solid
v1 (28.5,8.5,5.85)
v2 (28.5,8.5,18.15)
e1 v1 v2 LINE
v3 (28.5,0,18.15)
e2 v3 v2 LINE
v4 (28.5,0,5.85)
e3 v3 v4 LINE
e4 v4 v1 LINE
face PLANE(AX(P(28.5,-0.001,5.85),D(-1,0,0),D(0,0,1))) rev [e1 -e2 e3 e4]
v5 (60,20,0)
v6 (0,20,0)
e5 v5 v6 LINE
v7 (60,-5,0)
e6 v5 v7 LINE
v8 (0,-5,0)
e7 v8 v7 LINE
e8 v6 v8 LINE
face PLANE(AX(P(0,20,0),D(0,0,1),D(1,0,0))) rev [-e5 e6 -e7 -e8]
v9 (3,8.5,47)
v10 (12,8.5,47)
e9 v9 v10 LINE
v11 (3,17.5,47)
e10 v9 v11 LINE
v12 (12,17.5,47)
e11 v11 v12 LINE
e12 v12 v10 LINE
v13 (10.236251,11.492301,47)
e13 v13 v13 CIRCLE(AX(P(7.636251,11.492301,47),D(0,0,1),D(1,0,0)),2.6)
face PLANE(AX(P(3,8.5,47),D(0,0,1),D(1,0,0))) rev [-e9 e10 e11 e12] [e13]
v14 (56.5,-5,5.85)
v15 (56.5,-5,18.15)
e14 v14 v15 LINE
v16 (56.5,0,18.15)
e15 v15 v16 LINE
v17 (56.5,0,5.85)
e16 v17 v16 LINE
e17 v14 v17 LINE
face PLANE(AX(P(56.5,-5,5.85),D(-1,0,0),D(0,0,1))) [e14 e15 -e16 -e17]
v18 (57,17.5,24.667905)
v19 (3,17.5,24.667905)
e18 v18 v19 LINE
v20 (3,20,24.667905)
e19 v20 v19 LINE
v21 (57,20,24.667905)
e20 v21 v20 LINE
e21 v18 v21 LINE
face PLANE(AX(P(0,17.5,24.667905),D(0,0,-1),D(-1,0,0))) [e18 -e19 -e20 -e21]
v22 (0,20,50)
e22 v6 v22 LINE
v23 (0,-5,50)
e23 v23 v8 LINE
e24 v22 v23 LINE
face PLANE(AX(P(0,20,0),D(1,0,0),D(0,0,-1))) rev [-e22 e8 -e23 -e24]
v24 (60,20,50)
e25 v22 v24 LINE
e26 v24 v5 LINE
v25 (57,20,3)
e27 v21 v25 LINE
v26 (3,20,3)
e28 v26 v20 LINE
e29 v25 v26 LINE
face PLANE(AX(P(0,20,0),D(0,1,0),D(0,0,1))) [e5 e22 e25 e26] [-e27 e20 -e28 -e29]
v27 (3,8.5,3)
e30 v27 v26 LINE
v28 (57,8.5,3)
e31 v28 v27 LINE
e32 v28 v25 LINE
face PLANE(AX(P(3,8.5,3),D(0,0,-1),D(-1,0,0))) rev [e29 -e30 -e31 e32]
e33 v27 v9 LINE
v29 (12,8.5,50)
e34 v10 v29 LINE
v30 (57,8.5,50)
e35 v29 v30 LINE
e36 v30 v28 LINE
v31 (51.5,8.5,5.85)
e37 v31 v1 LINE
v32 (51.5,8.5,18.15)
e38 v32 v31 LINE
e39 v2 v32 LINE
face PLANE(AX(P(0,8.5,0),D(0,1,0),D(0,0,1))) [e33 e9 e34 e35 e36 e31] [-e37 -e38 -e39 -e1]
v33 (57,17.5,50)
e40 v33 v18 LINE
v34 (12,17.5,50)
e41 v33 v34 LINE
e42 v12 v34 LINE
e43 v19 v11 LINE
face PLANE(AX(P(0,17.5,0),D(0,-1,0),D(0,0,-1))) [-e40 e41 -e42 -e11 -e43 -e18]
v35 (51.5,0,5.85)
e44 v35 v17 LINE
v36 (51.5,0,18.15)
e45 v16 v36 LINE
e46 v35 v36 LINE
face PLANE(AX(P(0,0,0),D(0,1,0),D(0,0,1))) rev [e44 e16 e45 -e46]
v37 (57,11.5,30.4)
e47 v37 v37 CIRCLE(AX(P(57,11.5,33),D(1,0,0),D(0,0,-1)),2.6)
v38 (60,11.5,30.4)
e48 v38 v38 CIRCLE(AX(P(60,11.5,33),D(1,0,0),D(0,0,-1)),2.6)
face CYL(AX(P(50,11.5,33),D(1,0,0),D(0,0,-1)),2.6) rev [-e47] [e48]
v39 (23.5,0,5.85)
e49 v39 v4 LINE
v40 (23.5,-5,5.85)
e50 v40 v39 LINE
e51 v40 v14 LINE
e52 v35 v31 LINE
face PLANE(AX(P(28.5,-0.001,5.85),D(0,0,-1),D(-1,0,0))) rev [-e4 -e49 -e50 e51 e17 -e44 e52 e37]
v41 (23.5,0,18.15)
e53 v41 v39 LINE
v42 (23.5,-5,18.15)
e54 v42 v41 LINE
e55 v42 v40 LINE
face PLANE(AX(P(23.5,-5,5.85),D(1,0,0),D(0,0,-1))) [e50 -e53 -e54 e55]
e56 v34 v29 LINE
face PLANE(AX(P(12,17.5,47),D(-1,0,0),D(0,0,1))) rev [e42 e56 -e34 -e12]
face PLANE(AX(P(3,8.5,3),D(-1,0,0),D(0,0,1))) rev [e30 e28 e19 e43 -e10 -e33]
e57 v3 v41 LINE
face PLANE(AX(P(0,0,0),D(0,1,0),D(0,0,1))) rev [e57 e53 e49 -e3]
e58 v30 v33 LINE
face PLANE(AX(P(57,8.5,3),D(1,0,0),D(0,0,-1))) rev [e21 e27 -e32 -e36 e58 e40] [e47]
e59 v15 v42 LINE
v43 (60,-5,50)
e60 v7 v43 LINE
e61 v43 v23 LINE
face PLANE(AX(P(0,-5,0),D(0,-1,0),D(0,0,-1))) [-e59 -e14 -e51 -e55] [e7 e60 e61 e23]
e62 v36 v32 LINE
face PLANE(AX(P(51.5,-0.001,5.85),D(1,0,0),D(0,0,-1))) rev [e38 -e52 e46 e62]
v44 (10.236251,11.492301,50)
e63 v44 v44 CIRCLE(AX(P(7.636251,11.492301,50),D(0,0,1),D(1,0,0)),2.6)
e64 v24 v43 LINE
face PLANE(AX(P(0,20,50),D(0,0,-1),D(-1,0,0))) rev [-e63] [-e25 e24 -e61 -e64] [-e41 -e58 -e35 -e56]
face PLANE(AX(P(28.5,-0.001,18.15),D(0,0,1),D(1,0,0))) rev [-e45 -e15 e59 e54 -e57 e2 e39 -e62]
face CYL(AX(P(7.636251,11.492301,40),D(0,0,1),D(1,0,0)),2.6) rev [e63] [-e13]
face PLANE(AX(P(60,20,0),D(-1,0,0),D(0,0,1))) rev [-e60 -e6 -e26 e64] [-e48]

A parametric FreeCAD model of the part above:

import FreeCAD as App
import Part
import Sketcher

doc = App.newDocument("Part")
params = doc.addObject("Spreadsheet::Sheet", "Params")
for row, (alias, value) in enumerate([
    ("sketch1_width", "60 mm"),
    ("sketch1_height", "50 mm"),
    ("pad1_length", "20 mm"),
    ("sketch2_width", "54 mm"),
    ("sketch2_height", "44 mm"),
    ("pocket1_length", "11.5 mm"),
    ("sketch3_width", "23 mm"),
    ("sketch3_height", "12.3 mm"),
    ("sketch4_diameter", "5.2 mm"),
    ("pocket3_length", "10 mm"),
    ("sketch5_width", "60 mm"),
    ("sketch5_width2", "33 mm"),
    ("sketch5_height", "50 mm"),
    ("sketch5_height2", "12.3 mm"),
    ("pad2_length", "5 mm"),
    ("sketch6_diameter", "5.2 mm"),
    ("pocket4_length", "10 mm"),
    ("sketch7_width", "60 mm"),
    ("pad3_length", "2.5 mm"),
    ("sketch8_width", "45 mm"),
    ("sketch8_height", "9 mm"),
    ("pocket5_length", "3 mm"),
], start=1):
    params.set(f"A{row}", alias)
    params.set(f"B{row}", "=" + value)
    params.setAlias(f"B{row}", alias)

body = doc.addObject("PartDesign::Body", "Body")

# Sketch on XZ plane
sketch1 = body.newObject("Sketcher::SketchObject", "Sketch")
sketch1.AttachmentSupport = (doc.getObject("XZ_Plane"), [""])
sketch1.MapMode = "FlatFace"
sketch1.addGeometry(Part.LineSegment(App.Vector(0, 0, 0), App.Vector(0, 50, 0)), False)
sketch1.addGeometry(Part.LineSegment(App.Vector(0, 50, 0), App.Vector(60, 50, 0)), False)
sketch1.addGeometry(Part.LineSegment(App.Vector(60, 50, 0), App.Vector(60, 0, 0)), False)
sketch1.addGeometry(Part.LineSegment(App.Vector(60, 0, 0), App.Vector(0, 0, 0)), False)
sketch1.addConstraint(Sketcher.Constraint("Coincident", 0, 2, 1, 1))
sketch1.addConstraint(Sketcher.Constraint("Coincident", 1, 2, 2, 1))
sketch1.addConstraint(Sketcher.Constraint("Coincident", 2, 2, 3, 1))
sketch1.addConstraint(Sketcher.Constraint("Coincident", 3, 2, 0, 1))
sketch1.addConstraint(Sketcher.Constraint("Vertical", 0))
sketch1.addConstraint(Sketcher.Constraint("Horizontal", 1))
sketch1.addConstraint(Sketcher.Constraint("Vertical", 2))
sketch1.addConstraint(Sketcher.Constraint("Horizontal", 3))
sketch1.addConstraint(Sketcher.Constraint("Coincident", 3, 2, -1, 1))
sketch1.addConstraint(Sketcher.Constraint("DistanceX", 1, 1, 1, 2, 60.0))
sketch1.addConstraint(Sketcher.Constraint("DistanceY", 0, 1, 0, 2, 50.0))
sketch1.setExpression("Constraints[9]", "Params.sketch1_width")
sketch1.setExpression("Constraints[10]", "Params.sketch1_height")
pad1 = body.newObject("PartDesign::Pad", "Pad")
pad1.Profile = sketch1
pad1.setExpression("Length", "Params.pad1_length")
pad1.Reversed = True

# Sketch on XZ plane
sketch2 = body.newObject("Sketcher::SketchObject", "Sketch001")
sketch2.AttachmentSupport = (doc.getObject("XZ_Plane"), [""])
sketch2.MapMode = "FlatFace"
sketch2.AttachmentOffset = App.Placement(App.Vector(0, 0, -20), App.Rotation())
sketch2.addGeometry(Part.LineSegment(App.Vector(3, 3, 0), App.Vector(3, 47, 0)), False)
sketch2.addGeometry(Part.LineSegment(App.Vector(3, 47, 0), App.Vector(57, 47, 0)), False)
sketch2.addGeometry(Part.LineSegment(App.Vector(57, 47, 0), App.Vector(57, 3, 0)), False)
sketch2.addGeometry(Part.LineSegment(App.Vector(57, 3, 0), App.Vector(3, 3, 0)), False)
sketch2.addConstraint(Sketcher.Constraint("Coincident", 0, 2, 1, 1))
sketch2.addConstraint(Sketcher.Constraint("Coincident", 1, 2, 2, 1))
sketch2.addConstraint(Sketcher.Constraint("Coincident", 2, 2, 3, 1))
sketch2.addConstraint(Sketcher.Constraint("Coincident", 3, 2, 0, 1))
sketch2.addConstraint(Sketcher.Constraint("Vertical", 0))
sketch2.addConstraint(Sketcher.Constraint("Horizontal", 1))
sketch2.addConstraint(Sketcher.Constraint("Vertical", 2))
sketch2.addConstraint(Sketcher.Constraint("Horizontal", 3))
sketch2.addConstraint(Sketcher.Constraint("DistanceX", 1, 1, 1, 2, 54.0))
sketch2.addConstraint(Sketcher.Constraint("DistanceY", 0, 1, 0, 2, 44.0))
sketch2.addConstraint(Sketcher.Constraint("DistanceX", -1, 1, 0, 2, 3.0))
sketch2.addConstraint(Sketcher.Constraint("DistanceY", -1, 1, 0, 2, 47.0))
sketch2.setExpression("Constraints[8]", "Params.sketch2_width")
sketch2.setExpression("Constraints[9]", "Params.sketch2_height")
pocket1 = body.newObject("PartDesign::Pocket", "Pocket")
pocket1.Profile = sketch2
pocket1.setExpression("Length", "Params.pocket1_length")
pocket1.Reversed = True

# Sketch on XZ plane
sketch3 = body.newObject("Sketcher::SketchObject", "Sketch002")
sketch3.AttachmentSupport = (doc.getObject("XZ_Plane"), [""])
sketch3.MapMode = "FlatFace"
sketch3.AttachmentOffset = App.Placement(App.Vector(0, 0, -8.5), App.Rotation())
sketch3.addGeometry(Part.LineSegment(App.Vector(28, 6, 0), App.Vector(28, 18, 0)), False)
sketch3.addGeometry(Part.LineSegment(App.Vector(28, 18, 0), App.Vector(52, 18, 0)), False)
sketch3.addGeometry(Part.LineSegment(App.Vector(52, 18, 0), App.Vector(52, 6, 0)), False)
sketch3.addGeometry(Part.LineSegment(App.Vector(52, 6, 0), App.Vector(28, 6, 0)), False)
sketch3.addConstraint(Sketcher.Constraint("Coincident", 0, 2, 1, 1))
sketch3.addConstraint(Sketcher.Constraint("Coincident", 1, 2, 2, 1))
sketch3.addConstraint(Sketcher.Constraint("Coincident", 2, 2, 3, 1))
sketch3.addConstraint(Sketcher.Constraint("Coincident", 3, 2, 0, 1))
sketch3.addConstraint(Sketcher.Constraint("Vertical", 0))
sketch3.addConstraint(Sketcher.Constraint("Horizontal", 1))
sketch3.addConstraint(Sketcher.Constraint("Vertical", 2))
sketch3.addConstraint(Sketcher.Constraint("Horizontal", 3))
sketch3.addConstraint(Sketcher.Constraint("DistanceX", 1, 1, 1, 2, 23.0))
sketch3.addConstraint(Sketcher.Constraint("DistanceY", 0, 1, 0, 2, 12.3))
sketch3.addConstraint(Sketcher.Constraint("DistanceX", -1, 1, 0, 2, 28.5))
sketch3.addConstraint(Sketcher.Constraint("DistanceY", -1, 1, 0, 2, 18.15))
sketch3.setExpression("Constraints[8]", "Params.sketch3_width")
sketch3.setExpression("Constraints[9]", "Params.sketch3_height")
pocket2 = body.newObject("PartDesign::Pocket", "Pocket001")
pocket2.Profile = sketch3
pocket2.Type = "UpToFirst"
pocket2.Reversed = True

# Sketch on YZ plane
sketch4 = body.newObject("Sketcher::SketchObject", "Sketch003")
sketch4.AttachmentSupport = (doc.getObject("YZ_Plane"), [""])
sketch4.MapMode = "FlatFace"
sketch4.AttachmentOffset = App.Placement(App.Vector(0, 0, 60), App.Rotation())
sketch4.addGeometry(Part.Circle(App.Vector(11.5, 33, 0), App.Vector(0, 0, 1), 2.6), False)
sketch4.addConstraint(Sketcher.Constraint("Diameter", 0, 5.2))
sketch4.addConstraint(Sketcher.Constraint("DistanceY", -1, 1, 0, 3, 33.0))
sketch4.addConstraint(Sketcher.Constraint("DistanceX", -1, 1, 0, 3, 11.5))
sketch4.setExpression("Constraints[0]", "Params.sketch4_diameter")
pocket3 = body.newObject("PartDesign::Pocket", "Pocket002")
pocket3.Profile = sketch4
pocket3.setExpression("Length", "Params.pocket3_length")

# Sketch on XZ plane
sketch5 = body.newObject("Sketcher::SketchObject", "Sketch004")
sketch5.AttachmentSupport = (doc.getObject("XZ_Plane"), [""])
sketch5.MapMode = "FlatFace"
sketch5.addGeometry(Part.LineSegment(App.Vector(0, 50, 0), App.Vector(0, 0, 0)), False)
sketch5.addGeometry(Part.LineSegment(App.Vector(0, 0, 0), App.Vector(60, 0, 0)), False)
sketch5.addGeometry(Part.LineSegment(App.Vector(60, 0, 0), App.Vector(60, 50, 0)), False)
sketch5.addGeometry(Part.LineSegment(App.Vector(60, 50, 0), App.Vector(0, 50, 0)), False)
sketch5.addGeometry(Part.LineSegment(App.Vector(56, 6, 0), App.Vector(24, 6, 0)), False)
sketch5.addGeometry(Part.LineSegment(App.Vector(24, 6, 0), App.Vector(24, 18, 0)), False)
sketch5.addGeometry(Part.LineSegment(App.Vector(24, 18, 0), App.Vector(56, 18, 0)), False)
sketch5.addGeometry(Part.LineSegment(App.Vector(56, 18, 0), App.Vector(56, 6, 0)), False)
sketch5.addConstraint(Sketcher.Constraint("Coincident", 0, 2, 1, 1))
sketch5.addConstraint(Sketcher.Constraint("Coincident", 1, 2, 2, 1))
sketch5.addConstraint(Sketcher.Constraint("Coincident", 2, 2, 3, 1))
sketch5.addConstraint(Sketcher.Constraint("Coincident", 3, 2, 0, 1))
sketch5.addConstraint(Sketcher.Constraint("Coincident", 4, 2, 5, 1))
sketch5.addConstraint(Sketcher.Constraint("Coincident", 5, 2, 6, 1))
sketch5.addConstraint(Sketcher.Constraint("Coincident", 6, 2, 7, 1))
sketch5.addConstraint(Sketcher.Constraint("Coincident", 7, 2, 4, 1))
sketch5.addConstraint(Sketcher.Constraint("Vertical", 0))
sketch5.addConstraint(Sketcher.Constraint("Horizontal", 1))
sketch5.addConstraint(Sketcher.Constraint("Vertical", 2))
sketch5.addConstraint(Sketcher.Constraint("Horizontal", 3))
sketch5.addConstraint(Sketcher.Constraint("Horizontal", 4))
sketch5.addConstraint(Sketcher.Constraint("Vertical", 5))
sketch5.addConstraint(Sketcher.Constraint("Horizontal", 6))
sketch5.addConstraint(Sketcher.Constraint("Vertical", 7))
sketch5.addConstraint(Sketcher.Constraint("Coincident", 0, 2, -1, 1))
sketch5.addConstraint(Sketcher.Constraint("DistanceX", 1, 1, 1, 2, 60.0))
sketch5.addConstraint(Sketcher.Constraint("DistanceX", 4, 2, 4, 1, 33.0))
sketch5.addConstraint(Sketcher.Constraint("DistanceY", 0, 2, 0, 1, 50.0))
sketch5.addConstraint(Sketcher.Constraint("DistanceY", 5, 1, 5, 2, 12.3))
sketch5.addConstraint(Sketcher.Constraint("DistanceX", -1, 1, 4, 2, 23.5))
sketch5.addConstraint(Sketcher.Constraint("DistanceY", -1, 1, 4, 2, 5.85))
sketch5.setExpression("Constraints[17]", "Params.sketch5_width")
sketch5.setExpression("Constraints[18]", "Params.sketch5_width2")
sketch5.setExpression("Constraints[19]", "Params.sketch5_height")
sketch5.setExpression("Constraints[20]", "Params.sketch5_height2")
pad2 = body.newObject("PartDesign::Pad", "Pad001")
pad2.Profile = sketch5
pad2.setExpression("Length", "Params.pad2_length")

# Sketch on XY plane
sketch6 = body.newObject("Sketcher::SketchObject", "Sketch005")
sketch6.AttachmentSupport = (doc.getObject("XY_Plane"), [""])
sketch6.MapMode = "FlatFace"
sketch6.AttachmentOffset = App.Placement(App.Vector(0, 0, 50), App.Rotation())
sketch6.addGeometry(Part.Circle(App.Vector(7.6, 11.5, 0), App.Vector(0, 0, 1), 2.6), False)
sketch6.addConstraint(Sketcher.Constraint("Diameter", 0, 5.2))
sketch6.addConstraint(Sketcher.Constraint("DistanceY", -1, 1, 0, 3, 11.492301))
sketch6.addConstraint(Sketcher.Constraint("DistanceX", -1, 1, 0, 3, 7.636251))
sketch6.setExpression("Constraints[0]", "Params.sketch6_diameter")
pocket4 = body.newObject("PartDesign::Pocket", "Pocket003")
pocket4.Profile = sketch6
pocket4.setExpression("Length", "Params.pocket4_length")

# Sketch on XZ plane
sketch7 = body.newObject("Sketcher::SketchObject", "Sketch006")
sketch7.AttachmentSupport = (doc.getObject("XZ_Plane"), [""])
sketch7.MapMode = "FlatFace"
sketch7.AttachmentOffset = App.Placement(App.Vector(0, 0, -20), App.Rotation())
sketch7.addGeometry(Part.LineSegment(App.Vector(0, 25, 0), App.Vector(0, 50, 0)), False)
sketch7.addGeometry(Part.LineSegment(App.Vector(0, 50, 0), App.Vector(60, 50, 0)), False)
sketch7.addGeometry(Part.LineSegment(App.Vector(60, 50, 0), App.Vector(60, 25, 0)), False)
sketch7.addGeometry(Part.LineSegment(App.Vector(60, 25, 0), App.Vector(0, 25, 0)), False)
sketch7.addConstraint(Sketcher.Constraint("Coincident", 0, 2, 1, 1))
sketch7.addConstraint(Sketcher.Constraint("Coincident", 1, 2, 2, 1))
sketch7.addConstraint(Sketcher.Constraint("Coincident", 2, 2, 3, 1))
sketch7.addConstraint(Sketcher.Constraint("Coincident", 3, 2, 0, 1))
sketch7.addConstraint(Sketcher.Constraint("Vertical", 0))
sketch7.addConstraint(Sketcher.Constraint("Horizontal", 1))
sketch7.addConstraint(Sketcher.Constraint("Vertical", 2))
sketch7.addConstraint(Sketcher.Constraint("Horizontal", 3))
sketch7.addConstraint(Sketcher.Constraint("PointOnObject", 0, 2, -2))
sketch7.addConstraint(Sketcher.Constraint("DistanceX", 1, 1, 1, 2, 60.0))
sketch7.addConstraint(Sketcher.Constraint("DistanceY", -1, 1, 0, 2, 50.0))
sketch7.addConstraint(Sketcher.Constraint("DistanceY", 0, 1, 0, 2, 25.332095))
sketch7.setExpression("Constraints[9]", "Params.sketch7_width")
pad3 = body.newObject("PartDesign::Pad", "Pad002")
pad3.Profile = sketch7
pad3.setExpression("Length", "Params.pad3_length")

# Sketch on XY plane
sketch8 = body.newObject("Sketcher::SketchObject", "Sketch007")
sketch8.AttachmentSupport = (doc.getObject("XY_Plane"), [""])
sketch8.MapMode = "FlatFace"
sketch8.AttachmentOffset = App.Placement(App.Vector(0, 0, 50), App.Rotation())
sketch8.addGeometry(Part.LineSegment(App.Vector(12, 18, 0), App.Vector(12, 8, 0)), False)
sketch8.addGeometry(Part.LineSegment(App.Vector(12, 8, 0), App.Vector(57, 8, 0)), False)
sketch8.addGeometry(Part.LineSegment(App.Vector(57, 8, 0), App.Vector(57, 18, 0)), False)
sketch8.addGeometry(Part.LineSegment(App.Vector(57, 18, 0), App.Vector(12, 18, 0)), False)
sketch8.addConstraint(Sketcher.Constraint("Coincident", 0, 2, 1, 1))
sketch8.addConstraint(Sketcher.Constraint("Coincident", 1, 2, 2, 1))
sketch8.addConstraint(Sketcher.Constraint("Coincident", 2, 2, 3, 1))
sketch8.addConstraint(Sketcher.Constraint("Coincident", 3, 2, 0, 1))
sketch8.addConstraint(Sketcher.Constraint("Vertical", 0))
sketch8.addConstraint(Sketcher.Constraint("Horizontal", 1))
sketch8.addConstraint(Sketcher.Constraint("Vertical", 2))
sketch8.addConstraint(Sketcher.Constraint("Horizontal", 3))
sketch8.addConstraint(Sketcher.Constraint("DistanceX", 1, 1, 1, 2, 45.0))
sketch8.addConstraint(Sketcher.Constraint("DistanceY", 0, 2, 0, 1, 9.0))
sketch8.addConstraint(Sketcher.Constraint("DistanceX", -1, 1, 0, 2, 12.0))
sketch8.addConstraint(Sketcher.Constraint("DistanceY", -1, 1, 0, 2, 8.5))
sketch8.setExpression("Constraints[8]", "Params.sketch8_width")
sketch8.setExpression("Constraints[9]", "Params.sketch8_height")
pocket5 = body.newObject("PartDesign::Pocket", "Pocket004")
pocket5.Profile = sketch8
pocket5.setExpression("Length", "Params.pocket5_length")

doc.recompute()
